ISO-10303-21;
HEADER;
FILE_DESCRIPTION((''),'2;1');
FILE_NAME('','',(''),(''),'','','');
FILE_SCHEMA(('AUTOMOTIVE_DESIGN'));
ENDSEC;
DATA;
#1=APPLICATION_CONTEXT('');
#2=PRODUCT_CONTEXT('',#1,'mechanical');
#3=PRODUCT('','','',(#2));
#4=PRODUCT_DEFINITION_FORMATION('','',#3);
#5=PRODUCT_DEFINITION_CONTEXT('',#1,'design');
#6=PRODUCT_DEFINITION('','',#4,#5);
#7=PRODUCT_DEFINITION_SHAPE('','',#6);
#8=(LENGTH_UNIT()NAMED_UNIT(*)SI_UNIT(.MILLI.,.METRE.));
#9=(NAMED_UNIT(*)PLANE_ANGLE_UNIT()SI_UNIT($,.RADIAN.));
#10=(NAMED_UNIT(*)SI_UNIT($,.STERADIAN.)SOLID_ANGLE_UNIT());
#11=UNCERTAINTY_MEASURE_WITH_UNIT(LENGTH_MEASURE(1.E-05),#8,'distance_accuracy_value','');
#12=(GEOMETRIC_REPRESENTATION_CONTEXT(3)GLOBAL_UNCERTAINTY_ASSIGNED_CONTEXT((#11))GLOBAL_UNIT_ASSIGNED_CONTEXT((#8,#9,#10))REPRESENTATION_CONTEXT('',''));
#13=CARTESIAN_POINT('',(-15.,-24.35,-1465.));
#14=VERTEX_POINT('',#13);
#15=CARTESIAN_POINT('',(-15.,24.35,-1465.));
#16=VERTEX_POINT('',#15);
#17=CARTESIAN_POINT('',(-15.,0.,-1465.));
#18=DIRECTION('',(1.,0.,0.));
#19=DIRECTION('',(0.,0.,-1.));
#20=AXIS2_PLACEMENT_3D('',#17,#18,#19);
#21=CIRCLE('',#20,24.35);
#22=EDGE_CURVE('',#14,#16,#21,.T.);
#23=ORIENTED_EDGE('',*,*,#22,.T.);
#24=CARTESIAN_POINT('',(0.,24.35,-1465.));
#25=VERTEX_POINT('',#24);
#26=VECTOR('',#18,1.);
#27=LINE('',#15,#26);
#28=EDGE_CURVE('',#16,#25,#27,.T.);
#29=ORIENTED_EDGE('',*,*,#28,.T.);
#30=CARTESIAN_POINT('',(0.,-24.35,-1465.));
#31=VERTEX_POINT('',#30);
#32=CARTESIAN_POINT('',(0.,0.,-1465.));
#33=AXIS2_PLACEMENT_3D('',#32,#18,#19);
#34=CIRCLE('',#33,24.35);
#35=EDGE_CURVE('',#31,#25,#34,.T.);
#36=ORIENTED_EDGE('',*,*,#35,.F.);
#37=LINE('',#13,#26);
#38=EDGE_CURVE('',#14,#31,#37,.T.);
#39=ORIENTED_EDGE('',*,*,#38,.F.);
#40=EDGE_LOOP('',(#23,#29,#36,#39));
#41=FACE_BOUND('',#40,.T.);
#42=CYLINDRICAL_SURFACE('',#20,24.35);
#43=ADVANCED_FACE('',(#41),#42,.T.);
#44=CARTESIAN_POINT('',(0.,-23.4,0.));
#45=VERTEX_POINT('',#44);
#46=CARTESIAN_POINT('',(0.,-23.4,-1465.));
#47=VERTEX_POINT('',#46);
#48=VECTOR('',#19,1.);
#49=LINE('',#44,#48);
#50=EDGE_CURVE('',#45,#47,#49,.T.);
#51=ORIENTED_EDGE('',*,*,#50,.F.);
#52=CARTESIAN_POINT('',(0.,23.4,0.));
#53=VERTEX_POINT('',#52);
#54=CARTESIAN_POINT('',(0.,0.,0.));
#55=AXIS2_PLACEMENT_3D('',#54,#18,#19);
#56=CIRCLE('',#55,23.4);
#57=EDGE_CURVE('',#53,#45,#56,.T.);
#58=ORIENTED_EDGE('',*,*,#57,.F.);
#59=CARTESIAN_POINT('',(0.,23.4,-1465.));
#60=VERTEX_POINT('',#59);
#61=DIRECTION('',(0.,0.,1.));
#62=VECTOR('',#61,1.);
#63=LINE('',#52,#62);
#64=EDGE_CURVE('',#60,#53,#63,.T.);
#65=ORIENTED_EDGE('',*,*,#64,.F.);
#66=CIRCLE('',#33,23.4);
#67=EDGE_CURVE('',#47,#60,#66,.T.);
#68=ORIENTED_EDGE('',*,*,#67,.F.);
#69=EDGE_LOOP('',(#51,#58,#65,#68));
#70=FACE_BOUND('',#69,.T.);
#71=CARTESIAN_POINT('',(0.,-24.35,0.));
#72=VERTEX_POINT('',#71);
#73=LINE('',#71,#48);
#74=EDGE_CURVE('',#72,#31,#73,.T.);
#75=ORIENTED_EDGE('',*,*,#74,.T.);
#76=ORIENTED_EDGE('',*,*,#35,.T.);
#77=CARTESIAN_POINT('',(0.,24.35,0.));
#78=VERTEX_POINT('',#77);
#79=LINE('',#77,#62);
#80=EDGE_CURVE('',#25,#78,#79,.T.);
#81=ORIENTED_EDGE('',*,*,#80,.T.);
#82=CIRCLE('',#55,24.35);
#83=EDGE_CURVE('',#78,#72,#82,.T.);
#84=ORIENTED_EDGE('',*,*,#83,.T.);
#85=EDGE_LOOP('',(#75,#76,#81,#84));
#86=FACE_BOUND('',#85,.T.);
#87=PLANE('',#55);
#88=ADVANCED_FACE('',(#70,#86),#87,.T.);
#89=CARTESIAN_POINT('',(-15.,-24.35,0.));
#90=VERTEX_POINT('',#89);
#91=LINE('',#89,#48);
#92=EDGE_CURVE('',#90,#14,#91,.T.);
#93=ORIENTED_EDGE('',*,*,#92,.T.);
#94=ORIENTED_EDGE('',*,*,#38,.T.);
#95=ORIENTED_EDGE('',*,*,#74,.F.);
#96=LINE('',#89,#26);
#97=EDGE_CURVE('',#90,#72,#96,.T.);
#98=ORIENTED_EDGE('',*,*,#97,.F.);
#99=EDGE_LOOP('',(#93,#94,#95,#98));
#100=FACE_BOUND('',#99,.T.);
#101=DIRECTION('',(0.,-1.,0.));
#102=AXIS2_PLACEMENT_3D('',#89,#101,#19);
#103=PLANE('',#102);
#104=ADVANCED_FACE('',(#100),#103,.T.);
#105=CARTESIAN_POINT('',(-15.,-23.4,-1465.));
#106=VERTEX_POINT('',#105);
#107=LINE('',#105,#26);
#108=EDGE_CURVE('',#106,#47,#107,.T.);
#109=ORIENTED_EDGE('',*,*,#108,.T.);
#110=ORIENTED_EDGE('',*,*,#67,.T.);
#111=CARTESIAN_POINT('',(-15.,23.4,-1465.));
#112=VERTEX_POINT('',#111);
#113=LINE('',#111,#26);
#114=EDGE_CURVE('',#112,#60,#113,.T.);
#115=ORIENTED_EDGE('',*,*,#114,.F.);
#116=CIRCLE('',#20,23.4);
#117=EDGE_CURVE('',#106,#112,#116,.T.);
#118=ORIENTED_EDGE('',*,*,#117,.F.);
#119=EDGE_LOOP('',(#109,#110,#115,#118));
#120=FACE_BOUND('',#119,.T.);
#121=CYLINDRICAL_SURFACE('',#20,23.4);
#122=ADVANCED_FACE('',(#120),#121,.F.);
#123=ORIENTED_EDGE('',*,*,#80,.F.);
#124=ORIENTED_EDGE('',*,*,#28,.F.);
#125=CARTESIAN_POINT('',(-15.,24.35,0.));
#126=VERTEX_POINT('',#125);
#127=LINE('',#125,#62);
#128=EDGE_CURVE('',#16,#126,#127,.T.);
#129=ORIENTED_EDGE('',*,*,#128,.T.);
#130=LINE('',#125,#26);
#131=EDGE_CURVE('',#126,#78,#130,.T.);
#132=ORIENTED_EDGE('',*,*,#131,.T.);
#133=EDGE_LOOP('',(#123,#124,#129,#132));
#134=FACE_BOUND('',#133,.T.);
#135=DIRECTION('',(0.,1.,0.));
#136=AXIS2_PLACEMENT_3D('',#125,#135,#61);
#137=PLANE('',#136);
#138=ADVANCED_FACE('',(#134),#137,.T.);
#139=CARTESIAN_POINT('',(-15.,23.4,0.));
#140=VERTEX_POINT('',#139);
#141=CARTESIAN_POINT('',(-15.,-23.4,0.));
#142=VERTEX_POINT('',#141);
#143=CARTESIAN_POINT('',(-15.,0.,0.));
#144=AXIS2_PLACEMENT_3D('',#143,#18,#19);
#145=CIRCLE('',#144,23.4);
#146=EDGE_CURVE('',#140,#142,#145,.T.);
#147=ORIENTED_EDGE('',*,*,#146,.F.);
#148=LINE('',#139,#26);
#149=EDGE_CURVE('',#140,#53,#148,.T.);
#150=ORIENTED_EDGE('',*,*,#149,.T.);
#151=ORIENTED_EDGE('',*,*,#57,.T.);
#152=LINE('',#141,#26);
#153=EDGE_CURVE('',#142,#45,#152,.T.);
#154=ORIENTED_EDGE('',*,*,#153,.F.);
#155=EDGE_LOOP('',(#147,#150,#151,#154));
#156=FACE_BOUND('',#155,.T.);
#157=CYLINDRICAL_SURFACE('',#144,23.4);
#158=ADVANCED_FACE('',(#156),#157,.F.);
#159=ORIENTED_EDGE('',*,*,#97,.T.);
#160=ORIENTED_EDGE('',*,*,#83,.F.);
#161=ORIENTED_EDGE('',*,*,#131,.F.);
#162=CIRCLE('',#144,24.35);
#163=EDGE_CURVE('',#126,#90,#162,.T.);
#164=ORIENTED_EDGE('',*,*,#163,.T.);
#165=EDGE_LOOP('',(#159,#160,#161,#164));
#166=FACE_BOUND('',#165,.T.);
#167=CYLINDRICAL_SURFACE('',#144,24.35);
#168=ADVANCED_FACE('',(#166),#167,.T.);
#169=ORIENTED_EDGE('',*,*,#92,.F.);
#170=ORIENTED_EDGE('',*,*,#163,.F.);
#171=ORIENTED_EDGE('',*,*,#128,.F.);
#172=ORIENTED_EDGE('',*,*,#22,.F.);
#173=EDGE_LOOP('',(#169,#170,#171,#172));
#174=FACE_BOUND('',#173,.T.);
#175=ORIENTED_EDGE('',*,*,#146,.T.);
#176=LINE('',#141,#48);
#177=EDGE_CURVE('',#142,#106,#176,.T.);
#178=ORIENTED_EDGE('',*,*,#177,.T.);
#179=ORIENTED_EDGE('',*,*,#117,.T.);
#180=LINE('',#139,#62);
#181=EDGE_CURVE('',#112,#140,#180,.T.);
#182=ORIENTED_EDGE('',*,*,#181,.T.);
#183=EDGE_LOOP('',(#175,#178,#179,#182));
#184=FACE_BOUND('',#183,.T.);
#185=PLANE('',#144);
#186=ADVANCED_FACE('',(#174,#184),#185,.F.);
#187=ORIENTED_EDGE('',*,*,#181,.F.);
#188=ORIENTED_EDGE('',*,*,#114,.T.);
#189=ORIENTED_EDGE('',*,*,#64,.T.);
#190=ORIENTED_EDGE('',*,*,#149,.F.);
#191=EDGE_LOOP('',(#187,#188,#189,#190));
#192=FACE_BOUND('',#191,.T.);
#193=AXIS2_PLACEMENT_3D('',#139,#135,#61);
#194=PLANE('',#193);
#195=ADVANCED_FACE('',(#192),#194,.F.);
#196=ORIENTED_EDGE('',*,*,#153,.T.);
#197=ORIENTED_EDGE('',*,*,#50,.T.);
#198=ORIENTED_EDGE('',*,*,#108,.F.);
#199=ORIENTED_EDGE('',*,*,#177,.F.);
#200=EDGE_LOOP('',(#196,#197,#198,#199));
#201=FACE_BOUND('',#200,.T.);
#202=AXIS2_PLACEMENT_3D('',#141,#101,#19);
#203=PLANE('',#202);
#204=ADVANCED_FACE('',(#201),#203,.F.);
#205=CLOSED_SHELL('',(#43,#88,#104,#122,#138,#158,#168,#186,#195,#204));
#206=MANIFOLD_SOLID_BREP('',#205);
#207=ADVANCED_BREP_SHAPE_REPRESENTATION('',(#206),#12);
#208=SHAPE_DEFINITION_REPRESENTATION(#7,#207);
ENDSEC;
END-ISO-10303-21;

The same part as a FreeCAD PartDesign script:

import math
import FreeCAD as App
import Part
import Sketcher

doc = App.newDocument("Part")
body = doc.addObject("PartDesign::Body", "Body")

# Sketch on YZ plane
sketch1 = body.newObject("Sketcher::SketchObject", "Sketch")
sketch1.AttachmentSupport = (doc.getObject("YZ_Plane"), [""])
sketch1.MapMode = "FlatFace"
sketch1.addGeometry([
    Part.LineSegment(App.Vector(24.35, -1465, 0), App.Vector(24.35, 0, 0)),  # 0
    Part.ArcOfCircle(Part.Circle(App.Vector(0, 0, 0), App.Vector(0, 0, 1), 24.35), math.radians(0), math.radians(180)),  # 1
    Part.LineSegment(App.Vector(-24.35, 0, 0), App.Vector(-24.35, -1465, 0)),  # 2
    Part.ArcOfCircle(Part.Circle(App.Vector(0, -1465, 0), App.Vector(0, 0, 1), 24.35), math.radians(180), math.radians(360)),  # 3
    Part.LineSegment(App.Vector(23.4, 0, 0), App.Vector(23.4, -1465, 0)),  # 4
    Part.ArcOfCircle(Part.Circle(App.Vector(0, -1465, 0), App.Vector(0, 0, 1), 23.4), math.radians(180), math.radians(360)),  # 5
    Part.LineSegment(App.Vector(-23.4, -1465, 0), App.Vector(-23.4, 0, 0)),  # 6
    Part.ArcOfCircle(Part.Circle(App.Vector(0, 0, 0), App.Vector(0, 0, 1), 23.4), math.radians(0), math.radians(180)),  # 7
], False)
sketch1.addConstraint([
    Sketcher.Constraint("Tangent", 0, 2, 1, 1),
    Sketcher.Constraint("Tangent", 1, 2, 2, 1),
    Sketcher.Constraint("Tangent", 2, 2, 3, 1),
    Sketcher.Constraint("Tangent", 3, 2, 0, 1),
    Sketcher.Constraint("Tangent", 4, 2, 5, 2),
    Sketcher.Constraint("Tangent", 5, 1, 6, 1),
    Sketcher.Constraint("Tangent", 6, 2, 7, 2),
    Sketcher.Constraint("Tangent", 7, 1, 4, 1),
    Sketcher.Constraint("Vertical", 0),
    Sketcher.Constraint("Vertical", 2),
    Sketcher.Constraint("Vertical", 4),
    Sketcher.Constraint("Vertical", 6),
    Sketcher.Constraint("Coincident", 1, 3, -1, 1),
    Sketcher.Constraint("Coincident", 7, 3, -1, 1),
    Sketcher.Constraint("Horizontal", 5, 3, 2, 2),
    Sketcher.Constraint("Radius", 5, 23.4),
    Sketcher.Constraint("DistanceY", 0, 1, 0, 2, 1465.0),
    Sketcher.Constraint("Radius", 1, 24.35),
])
pad1 = body.newObject("PartDesign::Pad", "Pad")
pad1.Profile = sketch1
pad1.Length = 15
pad1.Reversed = True

doc.recompute()
